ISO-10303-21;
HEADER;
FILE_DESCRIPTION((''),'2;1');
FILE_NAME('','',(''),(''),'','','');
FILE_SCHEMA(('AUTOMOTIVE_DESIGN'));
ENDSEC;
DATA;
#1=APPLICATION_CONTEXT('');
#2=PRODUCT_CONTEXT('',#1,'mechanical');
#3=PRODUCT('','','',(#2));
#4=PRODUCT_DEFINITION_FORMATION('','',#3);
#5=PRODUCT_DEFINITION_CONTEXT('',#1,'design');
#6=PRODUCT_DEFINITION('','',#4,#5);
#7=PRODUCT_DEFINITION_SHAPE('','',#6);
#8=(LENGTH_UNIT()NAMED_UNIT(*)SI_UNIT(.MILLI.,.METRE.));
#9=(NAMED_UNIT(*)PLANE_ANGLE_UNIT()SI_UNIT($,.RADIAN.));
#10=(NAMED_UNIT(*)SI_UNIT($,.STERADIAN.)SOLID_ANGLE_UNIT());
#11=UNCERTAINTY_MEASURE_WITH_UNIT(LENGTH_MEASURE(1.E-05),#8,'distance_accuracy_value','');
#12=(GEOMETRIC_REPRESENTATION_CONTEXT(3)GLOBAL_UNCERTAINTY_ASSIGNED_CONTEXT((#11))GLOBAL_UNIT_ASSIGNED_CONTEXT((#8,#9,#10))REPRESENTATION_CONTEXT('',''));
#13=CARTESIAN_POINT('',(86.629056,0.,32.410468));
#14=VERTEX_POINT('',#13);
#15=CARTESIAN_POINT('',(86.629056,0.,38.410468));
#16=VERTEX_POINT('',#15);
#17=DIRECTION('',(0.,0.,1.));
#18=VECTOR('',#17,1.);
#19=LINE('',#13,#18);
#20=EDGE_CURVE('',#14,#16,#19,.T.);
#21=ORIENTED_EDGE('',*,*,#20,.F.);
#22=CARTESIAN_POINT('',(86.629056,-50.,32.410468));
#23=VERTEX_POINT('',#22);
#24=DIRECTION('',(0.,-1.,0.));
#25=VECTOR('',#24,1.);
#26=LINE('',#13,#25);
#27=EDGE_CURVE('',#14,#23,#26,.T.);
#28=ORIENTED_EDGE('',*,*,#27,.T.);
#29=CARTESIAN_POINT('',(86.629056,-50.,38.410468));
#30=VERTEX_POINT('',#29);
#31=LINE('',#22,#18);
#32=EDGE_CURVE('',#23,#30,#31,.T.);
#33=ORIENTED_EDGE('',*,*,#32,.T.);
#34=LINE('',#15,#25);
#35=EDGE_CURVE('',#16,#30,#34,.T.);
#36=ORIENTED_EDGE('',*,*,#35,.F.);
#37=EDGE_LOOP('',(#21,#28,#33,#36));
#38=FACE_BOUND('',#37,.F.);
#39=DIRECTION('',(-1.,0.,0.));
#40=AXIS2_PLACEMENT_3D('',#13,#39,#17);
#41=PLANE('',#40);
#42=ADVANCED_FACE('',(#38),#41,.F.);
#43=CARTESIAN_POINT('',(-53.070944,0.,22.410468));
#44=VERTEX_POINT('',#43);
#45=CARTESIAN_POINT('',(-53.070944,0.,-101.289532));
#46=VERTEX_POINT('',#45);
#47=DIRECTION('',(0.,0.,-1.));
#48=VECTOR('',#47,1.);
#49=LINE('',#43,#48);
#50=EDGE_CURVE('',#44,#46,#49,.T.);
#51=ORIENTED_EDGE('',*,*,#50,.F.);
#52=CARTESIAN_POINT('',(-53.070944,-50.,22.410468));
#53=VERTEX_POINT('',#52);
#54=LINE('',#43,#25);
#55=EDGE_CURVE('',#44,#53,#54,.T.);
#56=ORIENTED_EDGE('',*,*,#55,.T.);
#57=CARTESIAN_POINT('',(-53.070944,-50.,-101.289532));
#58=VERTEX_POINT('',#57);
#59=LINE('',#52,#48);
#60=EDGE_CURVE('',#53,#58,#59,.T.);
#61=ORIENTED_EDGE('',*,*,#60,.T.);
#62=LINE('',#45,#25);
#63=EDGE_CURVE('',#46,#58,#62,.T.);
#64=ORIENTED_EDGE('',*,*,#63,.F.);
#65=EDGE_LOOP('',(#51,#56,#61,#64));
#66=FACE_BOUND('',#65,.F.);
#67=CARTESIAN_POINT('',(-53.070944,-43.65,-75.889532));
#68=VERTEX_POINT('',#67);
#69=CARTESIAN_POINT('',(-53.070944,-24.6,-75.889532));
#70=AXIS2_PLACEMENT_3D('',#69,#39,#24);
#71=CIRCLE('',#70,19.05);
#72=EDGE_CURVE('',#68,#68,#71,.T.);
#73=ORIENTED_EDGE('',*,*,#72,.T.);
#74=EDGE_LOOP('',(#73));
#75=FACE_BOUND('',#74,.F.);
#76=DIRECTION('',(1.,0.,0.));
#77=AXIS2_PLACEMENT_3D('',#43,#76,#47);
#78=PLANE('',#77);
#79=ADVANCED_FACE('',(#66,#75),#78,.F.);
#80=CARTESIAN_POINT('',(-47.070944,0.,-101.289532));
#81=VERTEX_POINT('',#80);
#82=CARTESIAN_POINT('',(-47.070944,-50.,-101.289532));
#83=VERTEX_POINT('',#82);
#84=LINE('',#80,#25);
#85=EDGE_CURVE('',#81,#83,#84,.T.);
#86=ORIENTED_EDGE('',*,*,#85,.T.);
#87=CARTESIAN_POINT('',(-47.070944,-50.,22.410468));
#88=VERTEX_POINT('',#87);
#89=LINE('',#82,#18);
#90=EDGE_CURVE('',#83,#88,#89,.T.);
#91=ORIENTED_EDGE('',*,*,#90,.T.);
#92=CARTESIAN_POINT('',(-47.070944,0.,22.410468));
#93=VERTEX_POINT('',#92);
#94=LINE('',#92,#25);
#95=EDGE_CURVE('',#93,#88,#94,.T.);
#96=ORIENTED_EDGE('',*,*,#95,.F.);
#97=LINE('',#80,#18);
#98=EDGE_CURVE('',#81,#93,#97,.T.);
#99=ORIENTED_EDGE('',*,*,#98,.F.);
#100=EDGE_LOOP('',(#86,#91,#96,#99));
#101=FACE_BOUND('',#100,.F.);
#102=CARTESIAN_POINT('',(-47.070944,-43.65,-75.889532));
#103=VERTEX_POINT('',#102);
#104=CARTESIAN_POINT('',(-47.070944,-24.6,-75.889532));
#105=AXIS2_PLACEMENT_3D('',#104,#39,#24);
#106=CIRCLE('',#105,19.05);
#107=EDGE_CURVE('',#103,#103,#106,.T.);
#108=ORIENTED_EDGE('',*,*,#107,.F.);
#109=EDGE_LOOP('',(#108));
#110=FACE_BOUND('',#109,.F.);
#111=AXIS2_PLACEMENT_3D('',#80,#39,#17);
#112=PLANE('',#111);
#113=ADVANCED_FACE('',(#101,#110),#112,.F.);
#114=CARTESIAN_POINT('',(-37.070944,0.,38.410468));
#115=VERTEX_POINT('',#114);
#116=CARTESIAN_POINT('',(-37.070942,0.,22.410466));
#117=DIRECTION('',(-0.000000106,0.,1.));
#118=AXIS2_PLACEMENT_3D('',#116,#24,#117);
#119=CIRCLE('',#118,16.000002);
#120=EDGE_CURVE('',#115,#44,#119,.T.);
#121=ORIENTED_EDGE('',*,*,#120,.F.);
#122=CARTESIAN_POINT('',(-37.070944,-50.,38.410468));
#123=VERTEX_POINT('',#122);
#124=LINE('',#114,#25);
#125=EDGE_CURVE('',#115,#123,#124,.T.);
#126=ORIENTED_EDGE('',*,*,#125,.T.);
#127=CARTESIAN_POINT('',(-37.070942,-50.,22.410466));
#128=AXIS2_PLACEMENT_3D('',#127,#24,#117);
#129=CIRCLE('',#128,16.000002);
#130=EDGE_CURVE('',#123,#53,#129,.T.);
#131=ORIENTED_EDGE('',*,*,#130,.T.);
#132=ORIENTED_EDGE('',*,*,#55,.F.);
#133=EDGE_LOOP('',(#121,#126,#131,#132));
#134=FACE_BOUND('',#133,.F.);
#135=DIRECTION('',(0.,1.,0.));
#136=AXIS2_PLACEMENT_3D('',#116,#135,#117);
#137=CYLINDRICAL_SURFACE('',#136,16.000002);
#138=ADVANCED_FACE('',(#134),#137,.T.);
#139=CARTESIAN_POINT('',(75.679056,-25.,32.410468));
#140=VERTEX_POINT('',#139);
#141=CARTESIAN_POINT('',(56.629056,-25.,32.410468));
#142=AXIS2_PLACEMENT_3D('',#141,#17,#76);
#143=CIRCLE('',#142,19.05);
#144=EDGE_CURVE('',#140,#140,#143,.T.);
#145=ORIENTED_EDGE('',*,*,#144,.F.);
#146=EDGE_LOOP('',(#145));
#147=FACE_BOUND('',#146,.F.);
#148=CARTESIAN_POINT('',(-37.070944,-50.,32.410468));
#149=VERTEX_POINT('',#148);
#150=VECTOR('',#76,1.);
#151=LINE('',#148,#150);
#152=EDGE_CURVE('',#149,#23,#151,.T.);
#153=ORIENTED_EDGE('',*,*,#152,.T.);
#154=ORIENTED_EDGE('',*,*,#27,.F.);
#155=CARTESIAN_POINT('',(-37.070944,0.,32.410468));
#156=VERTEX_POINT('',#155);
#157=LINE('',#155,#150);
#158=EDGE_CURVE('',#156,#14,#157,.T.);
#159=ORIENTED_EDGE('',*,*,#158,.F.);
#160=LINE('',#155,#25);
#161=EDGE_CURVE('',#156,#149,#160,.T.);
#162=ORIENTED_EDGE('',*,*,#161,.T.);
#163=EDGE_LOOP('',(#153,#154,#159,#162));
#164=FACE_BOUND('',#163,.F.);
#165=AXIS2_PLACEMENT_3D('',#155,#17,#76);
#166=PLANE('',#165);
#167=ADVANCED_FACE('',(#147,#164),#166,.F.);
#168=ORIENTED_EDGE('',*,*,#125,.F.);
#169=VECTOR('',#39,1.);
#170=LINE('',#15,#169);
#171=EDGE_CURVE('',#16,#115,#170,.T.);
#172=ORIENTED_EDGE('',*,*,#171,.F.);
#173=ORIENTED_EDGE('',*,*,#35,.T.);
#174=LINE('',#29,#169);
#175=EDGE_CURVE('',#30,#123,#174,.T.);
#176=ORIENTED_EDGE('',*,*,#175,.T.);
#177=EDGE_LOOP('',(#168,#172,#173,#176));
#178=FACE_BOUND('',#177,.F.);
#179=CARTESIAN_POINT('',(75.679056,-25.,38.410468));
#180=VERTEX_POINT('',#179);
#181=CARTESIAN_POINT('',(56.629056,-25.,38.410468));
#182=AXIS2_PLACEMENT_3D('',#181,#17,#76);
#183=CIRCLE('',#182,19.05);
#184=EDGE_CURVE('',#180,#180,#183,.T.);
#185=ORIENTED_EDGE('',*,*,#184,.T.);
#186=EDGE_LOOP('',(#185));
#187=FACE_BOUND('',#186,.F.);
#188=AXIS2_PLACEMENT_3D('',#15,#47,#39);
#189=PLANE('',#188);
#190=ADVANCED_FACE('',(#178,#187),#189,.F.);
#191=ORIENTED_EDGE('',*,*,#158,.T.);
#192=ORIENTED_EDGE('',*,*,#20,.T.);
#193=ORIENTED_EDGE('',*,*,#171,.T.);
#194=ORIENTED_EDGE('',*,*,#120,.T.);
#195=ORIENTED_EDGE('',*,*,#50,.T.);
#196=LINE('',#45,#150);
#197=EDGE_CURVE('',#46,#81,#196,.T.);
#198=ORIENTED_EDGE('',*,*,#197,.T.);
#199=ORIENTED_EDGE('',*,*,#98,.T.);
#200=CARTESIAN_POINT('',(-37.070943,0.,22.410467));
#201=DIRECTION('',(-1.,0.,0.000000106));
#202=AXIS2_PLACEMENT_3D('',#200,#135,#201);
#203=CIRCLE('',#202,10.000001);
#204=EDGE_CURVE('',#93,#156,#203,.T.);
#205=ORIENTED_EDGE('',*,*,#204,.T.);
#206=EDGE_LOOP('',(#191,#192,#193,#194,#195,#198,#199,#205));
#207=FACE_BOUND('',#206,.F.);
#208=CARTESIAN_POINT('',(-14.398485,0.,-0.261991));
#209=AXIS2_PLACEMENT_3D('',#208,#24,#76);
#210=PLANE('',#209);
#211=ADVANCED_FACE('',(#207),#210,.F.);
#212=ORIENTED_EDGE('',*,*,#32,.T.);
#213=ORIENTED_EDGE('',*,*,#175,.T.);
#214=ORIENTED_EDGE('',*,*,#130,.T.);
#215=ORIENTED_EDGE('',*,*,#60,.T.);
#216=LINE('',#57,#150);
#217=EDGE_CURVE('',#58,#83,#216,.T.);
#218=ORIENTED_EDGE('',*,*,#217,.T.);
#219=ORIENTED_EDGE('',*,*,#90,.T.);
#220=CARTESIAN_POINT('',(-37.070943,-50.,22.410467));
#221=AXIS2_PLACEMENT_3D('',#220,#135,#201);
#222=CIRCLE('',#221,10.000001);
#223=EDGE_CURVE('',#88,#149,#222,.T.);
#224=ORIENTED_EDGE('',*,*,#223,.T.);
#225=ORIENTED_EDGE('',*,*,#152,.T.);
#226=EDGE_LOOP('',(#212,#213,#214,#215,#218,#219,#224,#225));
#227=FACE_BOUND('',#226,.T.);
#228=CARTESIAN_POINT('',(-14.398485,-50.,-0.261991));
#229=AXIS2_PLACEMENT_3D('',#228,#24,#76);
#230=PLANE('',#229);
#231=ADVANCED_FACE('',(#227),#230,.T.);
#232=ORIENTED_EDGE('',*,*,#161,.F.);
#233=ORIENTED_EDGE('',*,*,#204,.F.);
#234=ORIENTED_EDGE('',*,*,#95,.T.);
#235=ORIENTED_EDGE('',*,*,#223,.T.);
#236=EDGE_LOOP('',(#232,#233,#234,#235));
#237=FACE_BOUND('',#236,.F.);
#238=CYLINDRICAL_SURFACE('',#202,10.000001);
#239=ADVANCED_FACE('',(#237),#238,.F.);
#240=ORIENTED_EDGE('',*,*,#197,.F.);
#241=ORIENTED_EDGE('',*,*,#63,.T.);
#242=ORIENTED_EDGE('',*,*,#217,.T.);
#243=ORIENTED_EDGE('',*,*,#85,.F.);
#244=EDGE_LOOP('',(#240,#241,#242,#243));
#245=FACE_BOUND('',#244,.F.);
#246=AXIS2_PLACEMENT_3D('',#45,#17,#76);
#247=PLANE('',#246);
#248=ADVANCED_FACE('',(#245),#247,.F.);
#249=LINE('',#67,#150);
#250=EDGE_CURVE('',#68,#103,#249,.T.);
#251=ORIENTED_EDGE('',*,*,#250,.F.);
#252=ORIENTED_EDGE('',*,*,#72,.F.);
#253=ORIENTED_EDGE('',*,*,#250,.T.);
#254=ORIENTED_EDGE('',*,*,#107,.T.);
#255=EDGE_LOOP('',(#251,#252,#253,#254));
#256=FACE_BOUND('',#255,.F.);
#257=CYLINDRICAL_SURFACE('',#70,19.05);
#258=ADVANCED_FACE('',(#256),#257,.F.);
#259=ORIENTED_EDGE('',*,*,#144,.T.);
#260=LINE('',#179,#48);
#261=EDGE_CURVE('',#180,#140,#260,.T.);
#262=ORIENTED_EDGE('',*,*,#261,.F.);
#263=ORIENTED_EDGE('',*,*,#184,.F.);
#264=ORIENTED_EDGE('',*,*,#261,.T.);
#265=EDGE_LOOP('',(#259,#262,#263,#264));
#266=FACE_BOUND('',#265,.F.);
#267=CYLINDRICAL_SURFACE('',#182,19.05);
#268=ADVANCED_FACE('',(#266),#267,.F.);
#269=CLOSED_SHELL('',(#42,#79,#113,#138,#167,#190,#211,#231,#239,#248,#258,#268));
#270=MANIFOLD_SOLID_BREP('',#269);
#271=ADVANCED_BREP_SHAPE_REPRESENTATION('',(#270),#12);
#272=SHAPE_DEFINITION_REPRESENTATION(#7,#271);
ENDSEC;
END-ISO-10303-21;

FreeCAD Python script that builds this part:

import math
import FreeCAD as App
import Part
import Sketcher
from FreeCAD import Vector

doc = App.newDocument("Part")
body = doc.addObject("PartDesign::Body", "Body")

sketch1 = body.newObject("Sketcher::SketchObject", "Sketch")
sketch1.AttachmentSupport = (doc.getObject("XZ_Plane"), [""])
sketch1.MapMode = "FlatFace"
sketch1.addGeometry([
    Part.LineSegment(Vector(-53, 22, 0), Vector(-53, -101, 0)),
    Part.LineSegment(Vector(-53, -101, 0), Vector(-47, -101, 0)),
    Part.LineSegment(Vector(-47, -101, 0), Vector(-47, 22, 0)),
    Part.ArcOfCircle(Part.Circle(Vector(-37, 22, 0), Vector(0, 0, 1), 10), math.radians(90), math.radians(180)),
    Part.LineSegment(Vector(-37, 32, 0), Vector(87, 32, 0)),
    Part.LineSegment(Vector(87, 32, 0), Vector(87, 38, 0)),
    Part.LineSegment(Vector(87, 38, 0), Vector(-37, 38, 0)),
    Part.ArcOfCircle(Part.Circle(Vector(-37, 22, 0), Vector(0, 0, 1), 16), math.radians(90), math.radians(180)),
], False)
sketch1.addConstraint([
    Sketcher.Constraint("Coincident", 0, 2, 1, 1),
    Sketcher.Constraint("Coincident", 1, 2, 2, 1),
    Sketcher.Constraint("Tangent", 2, 2, 3, 2),
    Sketcher.Constraint("Tangent", 3, 1, 4, 1),
    Sketcher.Constraint("Coincident", 4, 2, 5, 1),
    Sketcher.Constraint("Coincident", 5, 2, 6, 1),
    Sketcher.Constraint("Tangent", 6, 2, 7, 1),
    Sketcher.Constraint("Tangent", 7, 2, 0, 1),
    Sketcher.Constraint("Vertical", 0),
    Sketcher.Constraint("Horizontal", 1),
    Sketcher.Constraint("Vertical", 2),
    Sketcher.Constraint("Horizontal", 4),
    Sketcher.Constraint("Vertical", 5),
    Sketcher.Constraint("Horizontal", 6),
    Sketcher.Constraint("Coincident", 7, 3, 3, 3),
    Sketcher.Constraint("Equal", 6, 0),
    Sketcher.Constraint("Radius", 3, 10.000001),
    Sketcher.Constraint("Radius", 7, 16.000002),
    Sketcher.Constraint("DistanceX", 4, 1, 4, 2, 123.7),
    Sketcher.Constraint("DistanceY", 0, 2, -1, 1, 101.289532),
    Sketcher.Constraint("DistanceX", 3, 3, -1, 1, 37.070943),
])
pad1 = body.newObject("PartDesign::Pad", "Pad")
pad1.Profile = sketch1
pad1.Length = 50

sketch2 = body.newObject("Sketcher::SketchObject", "Sketch001")
sketch2.AttachmentSupport = (doc.getObject("XY_Plane"), [""])
sketch2.MapMode = "FlatFace"
sketch2.AttachmentOffset = App.Placement(Vector(0, 0, 38.410468), App.Rotation())
sketch2.addGeometry(Part.Circle(Vector(57, -25, 0), Vector(0, 0, 1), 19), False)
sketch2.addConstraint([
    Sketcher.Constraint("Diameter", 0, 38.1),
    Sketcher.Constraint("DistanceY", 0, 3, -1, 1, 25.0),
    Sketcher.Constraint("DistanceX", -1, 1, 0, 3, 56.629056),
])
pocket1 = body.newObject("PartDesign::Pocket", "Pocket")
pocket1.Profile = sketch2
pocket1.Length = 25

sketch3 = body.newObject("Sketcher::SketchObject", "Sketch002")
sketch3.AttachmentSupport = (doc.getObject("YZ_Plane"), [""])
sketch3.MapMode = "FlatFace"
sketch3.AttachmentOffset = App.Placement(Vector(0, 0, -53.070944), App.Rotation())
sketch3.addGeometry(Part.Circle(Vector(-25, -76, 0), Vector(0, 0, 1), 19), False)
sketch3.addConstraint([
    Sketcher.Constraint("Diameter", 0, 38.1),
    Sketcher.Constraint("DistanceX", 0, 3, -1, 1, 24.6),
    Sketcher.Constraint("DistanceY", 0, 3, -1, 1, 75.889532),
])
pocket2 = body.newObject("PartDesign::Pocket", "Pocket001")
pocket2.Profile = sketch3
pocket2.Length = 25
pocket2.Reversed = True

doc.recompute()
